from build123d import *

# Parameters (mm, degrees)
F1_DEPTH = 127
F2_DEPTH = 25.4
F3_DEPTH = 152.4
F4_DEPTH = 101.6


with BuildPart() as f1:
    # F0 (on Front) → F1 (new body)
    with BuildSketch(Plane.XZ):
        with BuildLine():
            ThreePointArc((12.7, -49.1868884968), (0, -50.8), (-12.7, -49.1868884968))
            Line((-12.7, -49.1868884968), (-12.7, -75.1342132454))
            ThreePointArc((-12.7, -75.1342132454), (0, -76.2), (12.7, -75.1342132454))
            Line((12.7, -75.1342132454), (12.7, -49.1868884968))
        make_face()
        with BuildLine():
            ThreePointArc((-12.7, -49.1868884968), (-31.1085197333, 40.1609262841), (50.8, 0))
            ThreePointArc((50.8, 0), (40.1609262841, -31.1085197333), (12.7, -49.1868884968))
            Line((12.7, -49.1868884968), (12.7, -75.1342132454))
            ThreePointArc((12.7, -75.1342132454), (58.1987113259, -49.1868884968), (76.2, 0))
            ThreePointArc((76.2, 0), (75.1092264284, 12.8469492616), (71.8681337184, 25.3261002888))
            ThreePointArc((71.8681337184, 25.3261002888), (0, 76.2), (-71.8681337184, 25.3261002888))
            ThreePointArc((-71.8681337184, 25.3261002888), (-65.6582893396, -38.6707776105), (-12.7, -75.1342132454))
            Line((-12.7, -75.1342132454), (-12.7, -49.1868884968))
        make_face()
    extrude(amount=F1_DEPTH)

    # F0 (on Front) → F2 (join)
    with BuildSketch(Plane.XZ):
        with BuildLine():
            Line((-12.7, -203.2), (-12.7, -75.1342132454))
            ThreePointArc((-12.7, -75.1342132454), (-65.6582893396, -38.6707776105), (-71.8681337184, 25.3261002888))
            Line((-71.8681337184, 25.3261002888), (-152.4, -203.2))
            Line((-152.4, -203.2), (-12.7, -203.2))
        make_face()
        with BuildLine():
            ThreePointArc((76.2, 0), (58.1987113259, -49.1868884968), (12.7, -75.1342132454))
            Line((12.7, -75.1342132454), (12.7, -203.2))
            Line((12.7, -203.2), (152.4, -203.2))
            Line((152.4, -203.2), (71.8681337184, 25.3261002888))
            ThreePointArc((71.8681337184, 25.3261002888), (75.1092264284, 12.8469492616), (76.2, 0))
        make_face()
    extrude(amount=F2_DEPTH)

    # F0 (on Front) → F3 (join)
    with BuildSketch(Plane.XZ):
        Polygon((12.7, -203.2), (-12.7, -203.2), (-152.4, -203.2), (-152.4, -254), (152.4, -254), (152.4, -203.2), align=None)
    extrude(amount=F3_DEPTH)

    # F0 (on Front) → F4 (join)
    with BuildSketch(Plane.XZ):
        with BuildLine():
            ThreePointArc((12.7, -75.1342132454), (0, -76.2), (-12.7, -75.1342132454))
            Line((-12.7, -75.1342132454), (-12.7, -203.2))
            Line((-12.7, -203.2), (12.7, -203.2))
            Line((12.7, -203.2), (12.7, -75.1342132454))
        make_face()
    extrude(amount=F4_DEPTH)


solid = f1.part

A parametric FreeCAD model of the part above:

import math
import FreeCAD as App
import Part
import Sketcher

V = App.Vector
Q = App.Units.Quantity

doc = App.newDocument("Part")
params = doc.addObject("Spreadsheet::Sheet", "Params")
for row, (alias, value) in enumerate([
    ("sketch1_radius", "3 in"),
    ("sketch1_radius2", "2 in"),
    ("pad1_length", "5 in"),
    ("sketch2_radius", "3 in"),
    ("sketch2_width", "5.5 in"),
    ("pad2_length", "1 in"),
    ("sketch3_width", "12 in"),
    ("sketch3_height", "2 in"),
    ("pad3_length", "6 in"),
    ("sketch4_radius", "3 in"),
    ("sketch4_width", "1 in"),
    ("pad4_length", "4 in"),
], start=1):
    params.set(f"A{row}", alias)
    params.set(f"B{row}", "=" + value)
    params.setAlias(f"B{row}", alias)

body = doc.addObject("PartDesign::Body", "Body")

# Sketch on XZ plane
sketch1 = body.newObject("Sketcher::SketchObject", "Sketch")
sketch1.AttachmentSupport = (doc.getObject("XZ_Plane"), [""])
sketch1.MapMode = "FlatFace"
sketch1.addGeometry(Part.ArcOfCircle(Part.Circle(V(0, 0, 0), V(0, 0, 1), 76), math.radians(-99.59), math.radians(-80.41)), False)
sketch1.addGeometry(Part.ArcOfCircle(Part.Circle(V(0, 0, 0), V(0, 0, 1), 76), math.radians(-80), math.radians(19)), False)
sketch1.addGeometry(Part.ArcOfCircle(Part.Circle(V(0, 0, 0), V(0, 0, 1), 76), math.radians(19), math.radians(260)), False)
sketch1.addGeometry(Part.ArcOfCircle(Part.Circle(V(0, 0, 0), V(0, 0, 1), 51), math.radians(-104), math.radians(-76)), False)
sketch1.addGeometry(Part.ArcOfCircle(Part.Circle(V(0, 0, 0), V(0, 0, 1), 51), math.radians(0), math.radians(256)), False)
sketch1.addGeometry(Part.ArcOfCircle(Part.Circle(V(0, 0, 0), V(0, 0, 1), 51), math.radians(-76), math.radians(0)), False)
sketch1.addConstraint(Sketcher.Constraint("Tangent", 0, 2, 1, 1))
sketch1.addConstraint(Sketcher.Constraint("Tangent", 1, 2, 2, 1))
sketch1.addConstraint(Sketcher.Constraint("Tangent", 2, 2, 0, 1))
sketch1.addConstraint(Sketcher.Constraint("Tangent", 3, 1, 4, 2))
sketch1.addConstraint(Sketcher.Constraint("Tangent", 4, 1, 5, 2))
sketch1.addConstraint(Sketcher.Constraint("Tangent", 5, 1, 3, 2))
sketch1.addConstraint(Sketcher.Constraint("Coincident", 0, 3, -1, 1))
sketch1.addConstraint(Sketcher.Constraint("Coincident", 3, 3, -1, 1))
sketch1.addConstraint(Sketcher.Constraint("PointOnObject", 4, 1, -1))
sketch1.addConstraint(Sketcher.Constraint("Horizontal", 0, 2, 2, 2))
sketch1.addConstraint(Sketcher.Constraint("Horizontal", 3, 1, 5, 1))
sketch1.addConstraint(Sketcher.Constraint("Vertical", 2, 2, 3, 1))
sketch1.addConstraint(Sketcher.Constraint("Radius", 0, Q("3 in")))
sketch1.addConstraint(Sketcher.Constraint("Radius", 3, Q("2 in")))
sketch1.addConstraint(Sketcher.Constraint("DistanceX", 2, 2, 0, 2, Q("1 in")))
sketch1.addConstraint(Sketcher.Constraint("DistanceY", -1, 1, 1, 2, 25.3261))
sketch1.setExpression("Constraints[12]", "Params.sketch1_radius")
sketch1.setExpression("Constraints[13]", "Params.sketch1_radius2")
pad1 = body.newObject("PartDesign::Pad", "Pad")
pad1.Profile = sketch1
pad1.setExpression("Length", "Params.pad1_length")

# Sketch on XZ plane
sketch2 = body.newObject("Sketcher::SketchObject", "Sketch001")
sketch2.AttachmentSupport = (doc.getObject("XZ_Plane"), [""])
sketch2.MapMode = "FlatFace"
sketch2.addGeometry(Part.LineSegment(V(-13, -203, 0), V(-13, -75, 0)), False)
sketch2.addGeometry(Part.ArcOfCircle(Part.Circle(V(0, 0, 0), V(0, 0, 1), 76), math.radians(161), math.radians(260)), False)
sketch2.addGeometry(Part.LineSegment(V(-72, 25, 0), V(-152, -203, 0)), False)
sketch2.addGeometry(Part.LineSegment(V(-152, -203, 0), V(-13, -203, 0)), False)
sketch2.addGeometry(Part.LineSegment(V(13, -75, 0), V(13, -203, 0)), False)
sketch2.addGeometry(Part.LineSegment(V(13, -203, 0), V(152, -203, 0)), False)
sketch2.addGeometry(Part.LineSegment(V(152, -203, 0), V(72, 25, 0)), False)
sketch2.addGeometry(Part.ArcOfCircle(Part.Circle(V(0, 0, 0), V(0, 0, 1), 76), math.radians(-80), math.radians(19)), False)
sketch2.addConstraint(Sketcher.Constraint("Coincident", 0, 2, 1, 2))
sketch2.addConstraint(Sketcher.Constraint("Tangent", 1, 1, 2, 1))
sketch2.addConstraint(Sketcher.Constraint("Coincident", 2, 2, 3, 1))
sketch2.addConstraint(Sketcher.Constraint("Coincident", 3, 2, 0, 1))
sketch2.addConstraint(Sketcher.Constraint("Coincident", 4, 2, 5, 1))
sketch2.addConstraint(Sketcher.Constraint("Coincident", 5, 2, 6, 1))
sketch2.addConstraint(Sketcher.Constraint("Tangent", 6, 2, 7, 2))
sketch2.addConstraint(Sketcher.Constraint("Coincident", 7, 1, 4, 1))
sketch2.addConstraint(Sketcher.Constraint("Vertical", 0))
sketch2.addConstraint(Sketcher.Constraint("Horizontal", 3))
sketch2.addConstraint(Sketcher.Constraint("Vertical", 4))
sketch2.addConstraint(Sketcher.Constraint("Horizontal", 5))
sketch2.addConstraint(Sketcher.Constraint("Coincident", 1, 3, -1, 1))
sketch2.addConstraint(Sketcher.Constraint("Coincident", 7, 3, -1, 1))
sketch2.addConstraint(Sketcher.Constraint("Equal", 1, 7))
sketch2.addConstraint(Sketcher.Constraint("Symmetric", 3, 2, 4, 2, -2))
sketch2.addConstraint(Sketcher.Constraint("Horizontal", 1, 1, 6, 2))
sketch2.addConstraint(Sketcher.Constraint("Radius", 1, Q("3 in")))
sketch2.addConstraint(Sketcher.Constraint("DistanceX", 3, 1, 3, 2, Q("5.5 in")))
sketch2.addConstraint(Sketcher.Constraint("DistanceX", 2, 2, -1, 1, Q("6 in")))
sketch2.addConstraint(Sketcher.Constraint("DistanceY", 2, 2, -1, 1, Q("8 in")))
sketch2.setExpression("Constraints[17]", "Params.sketch2_radius")
sketch2.setExpression("Constraints[18]", "Params.sketch2_width")
pad2 = body.newObject("PartDesign::Pad", "Pad001")
pad2.Profile = sketch2
pad2.setExpression("Length", "Params.pad2_length")

# Sketch on XZ plane
sketch3 = body.newObject("Sketcher::SketchObject", "Sketch002")
sketch3.AttachmentSupport = (doc.getObject("XZ_Plane"), [""])
sketch3.MapMode = "FlatFace"
sketch3.addGeometry(Part.LineSegment(V(-152, -203, 0), V(-152, -254, 0)), False)
sketch3.addGeometry(Part.LineSegment(V(-152, -254, 0), V(152, -254, 0)), False)
sketch3.addGeometry(Part.LineSegment(V(152, -254, 0), V(152, -203, 0)), False)
sketch3.addGeometry(Part.LineSegment(V(152, -203, 0), V(-152, -203, 0)), False)
sketch3.addConstraint(Sketcher.Constraint("Coincident", 0, 2, 1, 1))
sketch3.addConstraint(Sketcher.Constraint("Coincident", 1, 2, 2, 1))
sketch3.addConstraint(Sketcher.Constraint("Coincident", 2, 2, 3, 1))
sketch3.addConstraint(Sketcher.Constraint("Coincident", 3, 2, 0, 1))
sketch3.addConstraint(Sketcher.Constraint("Vertical", 0))
sketch3.addConstraint(Sketcher.Constraint("Horizontal", 1))
sketch3.addConstraint(Sketcher.Constraint("Vertical", 2))
sketch3.addConstraint(Sketcher.Constraint("Horizontal", 3))
sketch3.addConstraint(Sketcher.Constraint("DistanceX", 1, 1, 1, 2, Q("12 in")))
sketch3.addConstraint(Sketcher.Constraint("DistanceY", 0, 2, 0, 1, Q("2 in")))
sketch3.addConstraint(Sketcher.Constraint("DistanceX", 0, 2, -1, 1, Q("6 in")))
sketch3.addConstraint(Sketcher.Constraint("DistanceY", 0, 2, -1, 1, Q("10 in")))
sketch3.setExpression("Constraints[8]", "Params.sketch3_width")
sketch3.setExpression("Constraints[9]", "Params.sketch3_height")
pad3 = body.newObject("PartDesign::Pad", "Pad002")
pad3.Profile = sketch3
pad3.setExpression("Length", "Params.pad3_length")

# Sketch on XZ plane
sketch4 = body.newObject("Sketcher::SketchObject", "Sketch003")
sketch4.AttachmentSupport = (doc.getObject("XZ_Plane"), [""])
sketch4.MapMode = "FlatFace"
sketch4.addGeometry(Part.ArcOfCircle(Part.Circle(V(0, 0, 0), V(0, 0, 1), 76), math.radians(-99.59), math.radians(-80.41)), False)
sketch4.addGeometry(Part.LineSegment(V(-13, -75, 0), V(-13, -203, 0)), False)
sketch4.addGeometry(Part.LineSegment(V(-13, -203, 0), V(13, -203, 0)), False)
sketch4.addGeometry(Part.LineSegment(V(13, -203, 0), V(13, -75, 0)), False)
sketch4.addConstraint(Sketcher.Constraint("Coincident", 0, 1, 1, 1))
sketch4.addConstraint(Sketcher.Constraint("Coincident", 1, 2, 2, 1))
sketch4.addConstraint(Sketcher.Constraint("Coincident", 2, 2, 3, 1))
sketch4.addConstraint(Sketcher.Constraint("Coincident", 3, 2, 0, 2))
sketch4.addConstraint(Sketcher.Constraint("Vertical", 1))
sketch4.addConstraint(Sketcher.Constraint("Horizontal", 2))
sketch4.addConstraint(Sketcher.Constraint("Vertical", 3))
sketch4.addConstraint(Sketcher.Constraint("Coincident", 0, 3, -1, 1))
sketch4.addConstraint(Sketcher.Constraint("Horizontal", 0, 1, 3, 2))
sketch4.addConstraint(Sketcher.Constraint("Radius", 0, Q("3 in")))
sketch4.addConstraint(Sketcher.Constraint("DistanceX", 2, 1, 2, 2, Q("1 in")))
sketch4.addConstraint(Sketcher.Constraint("DistanceY", 1, 2, -1, 1, Q("8 in")))
sketch4.setExpression("Constraints[9]", "Params.sketch4_radius")
sketch4.setExpression("Constraints[10]", "Params.sketch4_width")
pad4 = body.newObject("PartDesign::Pad", "Pad003")
pad4.Profile = sketch4
pad4.setExpression("Length", "Params.pad4_length")

doc.recompute()
